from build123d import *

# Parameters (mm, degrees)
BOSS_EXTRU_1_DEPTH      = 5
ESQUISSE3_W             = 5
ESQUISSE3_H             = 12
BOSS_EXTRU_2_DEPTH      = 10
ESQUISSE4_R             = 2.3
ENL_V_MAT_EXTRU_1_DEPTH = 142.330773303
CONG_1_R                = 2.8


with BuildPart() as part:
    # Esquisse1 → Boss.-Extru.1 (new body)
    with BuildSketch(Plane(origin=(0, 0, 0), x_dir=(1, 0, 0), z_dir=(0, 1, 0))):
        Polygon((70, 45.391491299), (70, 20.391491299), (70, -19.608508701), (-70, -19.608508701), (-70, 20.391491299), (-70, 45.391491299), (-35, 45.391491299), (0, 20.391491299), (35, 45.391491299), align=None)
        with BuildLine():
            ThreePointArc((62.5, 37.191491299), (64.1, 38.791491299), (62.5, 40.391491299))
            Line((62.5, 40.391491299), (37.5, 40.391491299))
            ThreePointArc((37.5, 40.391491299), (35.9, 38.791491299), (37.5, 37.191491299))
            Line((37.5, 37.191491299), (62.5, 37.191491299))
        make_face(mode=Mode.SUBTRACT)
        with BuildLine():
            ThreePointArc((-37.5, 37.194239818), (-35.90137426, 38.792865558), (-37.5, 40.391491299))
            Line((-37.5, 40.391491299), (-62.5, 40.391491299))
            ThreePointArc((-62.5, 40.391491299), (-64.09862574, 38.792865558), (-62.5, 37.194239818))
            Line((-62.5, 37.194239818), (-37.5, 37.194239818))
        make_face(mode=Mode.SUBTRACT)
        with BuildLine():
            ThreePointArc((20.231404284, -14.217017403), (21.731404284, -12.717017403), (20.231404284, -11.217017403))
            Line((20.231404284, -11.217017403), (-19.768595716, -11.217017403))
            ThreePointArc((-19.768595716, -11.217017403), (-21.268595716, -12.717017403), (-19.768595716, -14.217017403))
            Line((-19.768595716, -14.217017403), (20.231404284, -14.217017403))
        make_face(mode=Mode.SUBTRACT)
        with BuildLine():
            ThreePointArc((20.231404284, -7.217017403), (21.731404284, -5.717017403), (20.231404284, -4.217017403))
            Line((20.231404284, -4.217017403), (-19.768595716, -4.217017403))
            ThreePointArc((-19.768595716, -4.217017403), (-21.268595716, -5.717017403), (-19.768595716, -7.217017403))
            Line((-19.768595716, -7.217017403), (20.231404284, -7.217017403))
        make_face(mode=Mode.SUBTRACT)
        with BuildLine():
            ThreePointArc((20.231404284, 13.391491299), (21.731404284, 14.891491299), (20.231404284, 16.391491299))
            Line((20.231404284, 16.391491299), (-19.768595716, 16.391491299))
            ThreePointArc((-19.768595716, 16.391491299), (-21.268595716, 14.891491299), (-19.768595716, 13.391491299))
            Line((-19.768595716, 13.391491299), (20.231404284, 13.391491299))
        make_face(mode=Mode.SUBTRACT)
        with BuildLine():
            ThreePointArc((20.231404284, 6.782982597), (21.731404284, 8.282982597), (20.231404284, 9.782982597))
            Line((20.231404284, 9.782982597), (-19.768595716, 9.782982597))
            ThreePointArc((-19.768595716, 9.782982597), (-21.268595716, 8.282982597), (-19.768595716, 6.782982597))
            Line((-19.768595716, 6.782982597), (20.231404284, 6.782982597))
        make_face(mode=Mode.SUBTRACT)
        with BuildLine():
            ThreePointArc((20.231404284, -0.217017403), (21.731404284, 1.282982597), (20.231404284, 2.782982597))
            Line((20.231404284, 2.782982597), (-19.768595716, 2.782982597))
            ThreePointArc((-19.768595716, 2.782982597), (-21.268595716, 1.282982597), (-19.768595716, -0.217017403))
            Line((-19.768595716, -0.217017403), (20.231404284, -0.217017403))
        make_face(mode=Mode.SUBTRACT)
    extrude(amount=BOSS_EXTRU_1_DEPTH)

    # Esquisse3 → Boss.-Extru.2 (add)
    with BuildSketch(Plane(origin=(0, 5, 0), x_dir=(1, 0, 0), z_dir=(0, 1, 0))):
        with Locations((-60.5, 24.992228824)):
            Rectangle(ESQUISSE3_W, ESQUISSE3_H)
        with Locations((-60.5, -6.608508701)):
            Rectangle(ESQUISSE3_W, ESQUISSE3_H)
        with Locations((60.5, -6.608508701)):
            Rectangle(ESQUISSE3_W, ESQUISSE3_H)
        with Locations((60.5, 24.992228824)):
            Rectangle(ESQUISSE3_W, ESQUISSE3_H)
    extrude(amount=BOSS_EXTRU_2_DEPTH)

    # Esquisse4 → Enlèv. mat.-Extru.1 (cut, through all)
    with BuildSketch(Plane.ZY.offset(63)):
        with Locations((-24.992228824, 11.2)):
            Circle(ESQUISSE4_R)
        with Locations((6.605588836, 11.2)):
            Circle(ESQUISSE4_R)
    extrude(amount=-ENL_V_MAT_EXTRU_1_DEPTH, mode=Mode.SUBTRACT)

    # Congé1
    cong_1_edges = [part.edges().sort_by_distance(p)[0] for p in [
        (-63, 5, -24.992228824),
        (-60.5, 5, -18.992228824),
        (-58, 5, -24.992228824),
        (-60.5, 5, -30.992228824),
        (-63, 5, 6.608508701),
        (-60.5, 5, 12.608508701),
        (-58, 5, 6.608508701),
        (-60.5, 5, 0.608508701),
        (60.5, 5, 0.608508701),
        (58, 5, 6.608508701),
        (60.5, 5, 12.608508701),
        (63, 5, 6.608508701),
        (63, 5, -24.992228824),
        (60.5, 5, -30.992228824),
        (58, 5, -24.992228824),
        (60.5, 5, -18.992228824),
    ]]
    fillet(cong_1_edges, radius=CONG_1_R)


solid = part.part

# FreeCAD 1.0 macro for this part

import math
import FreeCAD as App
import Part
import Sketcher


def edges_at(feature, points):
    """Names of the edges that pass closest to the given points."""
    edges = feature.Shape.Edges
    near = lambda p: min(range(len(edges)), key=lambda i: edges[i].distToShape(Part.Vertex(*p))[0])
    return sorted({f"Edge{near(p) + 1}" for p in points})


def add_polygon(sketch, points):
    """Adds a closed chain of lines whose ends are joined by coincident constraints."""
    first, n = sketch.GeometryCount, len(points)
    for a, b in zip(points, points[1:] + points[:1]):
        sketch.addGeometry(Part.LineSegment(App.Vector(*a, 0), App.Vector(*b, 0)), False)
    for i in range(n):
        sketch.addConstraint(Sketcher.Constraint("Coincident", first + i, 2, first + (i + 1) % n, 1))

doc = App.newDocument("Part")
body = doc.addObject("PartDesign::Body", "Body")

# Sketch on XZ plane
sketch1 = body.newObject("Sketcher::SketchObject", "Sketch")
sketch1.AttachmentSupport = (doc.getObject("XZ_Plane"), [""])
sketch1.MapMode = "FlatFace"
add_polygon(sketch1, [(70, 19.608509), (70, -45.391491), (35, -45.391491), (0, -20.391491), (-35, -45.391491), (-70, -45.391491), (-70, 19.608509)])  # lines 0-6
sketch1.addGeometry(Part.LineSegment(App.Vector(20.231404, 14.217017, 0), App.Vector(-19.768596, 14.217017, 0)), False)  # 7
sketch1.addGeometry(Part.ArcOfCircle(Part.Circle(App.Vector(-19.768596, 12.717017, 0), App.Vector(0, 0, 1), 1.5), math.radians(90), math.radians(270)), False)  # 8
sketch1.addGeometry(Part.LineSegment(App.Vector(-19.768596, 11.217017, 0), App.Vector(20.231404, 11.217017, 0)), False)  # 9
sketch1.addGeometry(Part.ArcOfCircle(Part.Circle(App.Vector(20.231404, 12.717017, 0), App.Vector(0, 0, 1), 1.5), math.radians(-90), math.radians(90)), False)  # 10
sketch1.addGeometry(Part.LineSegment(App.Vector(20.231404, 7.217017, 0), App.Vector(-19.768596, 7.217017, 0)), False)  # 11
sketch1.addGeometry(Part.ArcOfCircle(Part.Circle(App.Vector(-19.768596, 5.717017, 0), App.Vector(0, 0, 1), 1.5), math.radians(90), math.radians(270)), False)  # 12
sketch1.addGeometry(Part.LineSegment(App.Vector(-19.768596, 4.217017, 0), App.Vector(20.231404, 4.217017, 0)), False)  # 13
sketch1.addGeometry(Part.ArcOfCircle(Part.Circle(App.Vector(20.231404, 5.717017, 0), App.Vector(0, 0, 1), 1.5), math.radians(-90), math.radians(90)), False)  # 14
sketch1.addGeometry(Part.LineSegment(App.Vector(20.231404, 0.217017, 0), App.Vector(-19.768596, 0.217017, 0)), False)  # 15
sketch1.addGeometry(Part.ArcOfCircle(Part.Circle(App.Vector(-19.768596, -1.282983, 0), App.Vector(0, 0, 1), 1.5), math.radians(90), math.radians(270)), False)  # 16
sketch1.addGeometry(Part.LineSegment(App.Vector(-19.768596, -2.782983, 0), App.Vector(20.231404, -2.782983, 0)), False)  # 17
sketch1.addGeometry(Part.ArcOfCircle(Part.Circle(App.Vector(20.231404, -1.282983, 0), App.Vector(0, 0, 1), 1.5), math.radians(-90), math.radians(90)), False)  # 18
sketch1.addGeometry(Part.LineSegment(App.Vector(20.231404, -6.782983, 0), App.Vector(-19.768596, -6.782983, 0)), False)  # 19
sketch1.addGeometry(Part.ArcOfCircle(Part.Circle(App.Vector(-19.768596, -8.282983, 0), App.Vector(0, 0, 1), 1.5), math.radians(90), math.radians(270)), False)  # 20
sketch1.addGeometry(Part.LineSegment(App.Vector(-19.768596, -9.782983, 0), App.Vector(20.231404, -9.782983, 0)), False)  # 21
sketch1.addGeometry(Part.ArcOfCircle(Part.Circle(App.Vector(20.231404, -8.282983, 0), App.Vector(0, 0, 1), 1.5), math.radians(-90), math.radians(90)), False)  # 22
sketch1.addGeometry(Part.LineSegment(App.Vector(20.231404, -13.391491, 0), App.Vector(-19.768596, -13.391491, 0)), False)  # 23
sketch1.addGeometry(Part.ArcOfCircle(Part.Circle(App.Vector(-19.768596, -14.891491, 0), App.Vector(0, 0, 1), 1.5), math.radians(90), math.radians(270)), False)  # 24
sketch1.addGeometry(Part.LineSegment(App.Vector(-19.768596, -16.391491, 0), App.Vector(20.231404, -16.391491, 0)), False)  # 25
sketch1.addGeometry(Part.ArcOfCircle(Part.Circle(App.Vector(20.231404, -14.891491, 0), App.Vector(0, 0, 1), 1.5), math.radians(-90), math.radians(90)), False)  # 26
sketch1.addGeometry(Part.LineSegment(App.Vector(62.5, -37.191491, 0), App.Vector(37.5, -37.191491, 0)), False)  # 27
sketch1.addGeometry(Part.ArcOfCircle(Part.Circle(App.Vector(37.5, -38.791491, 0), App.Vector(0, 0, 1), 1.6), math.radians(90), math.radians(270)), False)  # 28
sketch1.addGeometry(Part.LineSegment(App.Vector(37.5, -40.391491, 0), App.Vector(62.5, -40.391491, 0)), False)  # 29
sketch1.addGeometry(Part.ArcOfCircle(Part.Circle(App.Vector(62.5, -38.791491, 0), App.Vector(0, 0, 1), 1.6), math.radians(-90), math.radians(90)), False)  # 30
sketch1.addGeometry(Part.LineSegment(App.Vector(-37.5, -37.19424, 0), App.Vector(-62.5, -37.19424, 0)), False)  # 31
sketch1.addGeometry(Part.ArcOfCircle(Part.Circle(App.Vector(-62.5, -38.792866, 0), App.Vector(0, 0, 1), 1.598626), math.radians(90), math.radians(270)), False)  # 32
sketch1.addGeometry(Part.LineSegment(App.Vector(-62.5, -40.391491, 0), App.Vector(-37.5, -40.391491, 0)), False)  # 33
sketch1.addGeometry(Part.ArcOfCircle(Part.Circle(App.Vector(-37.5, -38.792866, 0), App.Vector(0, 0, 1), 1.598626), math.radians(-90), math.radians(90)), False)  # 34
sketch1.addConstraint(Sketcher.Constraint("Tangent", 7, 2, 8, 1))
sketch1.addConstraint(Sketcher.Constraint("Tangent", 8, 2, 9, 1))
sketch1.addConstraint(Sketcher.Constraint("Tangent", 9, 2, 10, 1))
sketch1.addConstraint(Sketcher.Constraint("Tangent", 10, 2, 7, 1))
sketch1.addConstraint(Sketcher.Constraint("Tangent", 11, 2, 12, 1))
sketch1.addConstraint(Sketcher.Constraint("Tangent", 12, 2, 13, 1))
sketch1.addConstraint(Sketcher.Constraint("Tangent", 13, 2, 14, 1))
sketch1.addConstraint(Sketcher.Constraint("Tangent", 14, 2, 11, 1))
sketch1.addConstraint(Sketcher.Constraint("Tangent", 15, 2, 16, 1))
sketch1.addConstraint(Sketcher.Constraint("Tangent", 16, 2, 17, 1))
sketch1.addConstraint(Sketcher.Constraint("Tangent", 17, 2, 18, 1))
sketch1.addConstraint(Sketcher.Constraint("Tangent", 18, 2, 15, 1))
sketch1.addConstraint(Sketcher.Constraint("Tangent", 19, 2, 20, 1))
sketch1.addConstraint(Sketcher.Constraint("Tangent", 20, 2, 21, 1))
sketch1.addConstraint(Sketcher.Constraint("Tangent", 21, 2, 22, 1))
sketch1.addConstraint(Sketcher.Constraint("Tangent", 22, 2, 19, 1))
sketch1.addConstraint(Sketcher.Constraint("Tangent", 23, 2, 24, 1))
sketch1.addConstraint(Sketcher.Constraint("Tangent", 24, 2, 25, 1))
sketch1.addConstraint(Sketcher.Constraint("Tangent", 25, 2, 26, 1))
sketch1.addConstraint(Sketcher.Constraint("Tangent", 26, 2, 23, 1))
sketch1.addConstraint(Sketcher.Constraint("Tangent", 27, 2, 28, 1))
sketch1.addConstraint(Sketcher.Constraint("Tangent", 28, 2, 29, 1))
sketch1.addConstraint(Sketcher.Constraint("Tangent", 29, 2, 30, 1))
sketch1.addConstraint(Sketcher.Constraint("Tangent", 30, 2, 27, 1))
sketch1.addConstraint(Sketcher.Constraint("Tangent", 31, 2, 32, 1))
sketch1.addConstraint(Sketcher.Constraint("Tangent", 32, 2, 33, 1))
sketch1.addConstraint(Sketcher.Constraint("Tangent", 33, 2, 34, 1))
sketch1.addConstraint(Sketcher.Constraint("Tangent", 34, 2, 31, 1))
sketch1.addConstraint(Sketcher.Constraint("Vertical", 0))
sketch1.addConstraint(Sketcher.Constraint("Horizontal", 1))
sketch1.addConstraint(Sketcher.Constraint("Horizontal", 4))
sketch1.addConstraint(Sketcher.Constraint("Vertical", 5))
sketch1.addConstraint(Sketcher.Constraint("Horizontal", 6))
sketch1.addConstraint(Sketcher.Constraint("Horizontal", 7))
sketch1.addConstraint(Sketcher.Constraint("Horizontal", 9))
sketch1.addConstraint(Sketcher.Constraint("Horizontal", 11))
sketch1.addConstraint(Sketcher.Constraint("Horizontal", 13))
sketch1.addConstraint(Sketcher.Constraint("Horizontal", 15))
sketch1.addConstraint(Sketcher.Constraint("Horizontal", 17))
sketch1.addConstraint(Sketcher.Constraint("Horizontal", 19))
sketch1.addConstraint(Sketcher.Constraint("Horizontal", 21))
sketch1.addConstraint(Sketcher.Constraint("Horizontal", 23))
sketch1.addConstraint(Sketcher.Constraint("Horizontal", 25))
sketch1.addConstraint(Sketcher.Constraint("Horizontal", 27))
sketch1.addConstraint(Sketcher.Constraint("Horizontal", 29))
sketch1.addConstraint(Sketcher.Constraint("Horizontal", 31))
sketch1.addConstraint(Sketcher.Constraint("Horizontal", 33))
sketch1.addConstraint(Sketcher.Constraint("Equal", 10, 12))
sketch1.addConstraint(Sketcher.Constraint("Equal", 14, 16))
sketch1.addConstraint(Sketcher.Constraint("Equal", 18, 20))
sketch1.addConstraint(Sketcher.Constraint("Equal", 22, 24))
sketch1.addConstraint(Sketcher.Constraint("Symmetric", 1, 2, 3, 2, -2))
sketch1.addConstraint(Sketcher.Constraint("Symmetric", 29, 2, 32, 2, -2))
sketch1.addConstraint(Sketcher.Constraint("PointOnObject", 2, 2, -2))
sketch1.addConstraint(Sketcher.Constraint("Vertical", 8, 3, 12, 3))
sketch1.addConstraint(Sketcher.Constraint("Vertical", 10, 3, 14, 3))
sketch1.addConstraint(Sketcher.Constraint("Vertical", 12, 3, 16, 3))
sketch1.addConstraint(Sketcher.Constraint("Vertical", 14, 3, 18, 3))
sketch1.addConstraint(Sketcher.Constraint("Vertical", 16, 3, 20, 3))
sketch1.addConstraint(Sketcher.Constraint("Vertical", 18, 3, 22, 3))
sketch1.addConstraint(Sketcher.Constraint("Vertical", 20, 3, 24, 3))
sketch1.addConstraint(Sketcher.Constraint("Vertical", 22, 3, 26, 3))
sketch1.addConstraint(Sketcher.Constraint("Equal", 1, 4))
sketch1.addConstraint(Sketcher.Constraint("Equal", 29, 31))
sketch1.addConstraint(Sketcher.Constraint("Radius", 8, 1.5))
sketch1.addConstraint(Sketcher.Constraint("Radius", 28, 1.6))
sketch1.addConstraint(Sketcher.Constraint("DistanceX", 1, 2, 1, 1, 35.0))
sketch1.addConstraint(Sketcher.Constraint("DistanceX", 6, 1, 6, 2, 140.0))
sketch1.addConstraint(Sketcher.Constraint("DistanceX", 7, 2, 7, 1, 40.0))
sketch1.addConstraint(Sketcher.Constraint("DistanceX", 27, 2, 27, 1, 25.0))
sketch1.addConstraint(Sketcher.Constraint("DistanceY", 0, 2, 0, 1, 65.0))
sketch1.addConstraint(Sketcher.Constraint("DistanceY", 12, 3, 8, 3, 7.0))
sketch1.addConstraint(Sketcher.Constraint("DistanceY", 16, 3, 12, 3, 7.0))
sketch1.addConstraint(Sketcher.Constraint("DistanceY", 20, 3, 16, 3, 7.0))
sketch1.addConstraint(Sketcher.Constraint("DistanceY", 3, 2, 2, 2, 25.0))
sketch1.addConstraint(Sketcher.Constraint("DistanceY", 1, 2, 28, 2, 5.0))
sketch1.addConstraint(Sketcher.Constraint("DistanceY", 28, 2, 25, 2, 24.0))
sketch1.addConstraint(Sketcher.Constraint("DistanceX", -1, 1, 28, 3, 37.5))
sketch1.addConstraint(Sketcher.Constraint("Radius", 32, 1.598626))
sketch1.addConstraint(Sketcher.Constraint("DistanceY", 24, 3, -1, 1, 14.891491))
sketch1.addConstraint(Sketcher.Constraint("DistanceY", 24, 3, 20, 3, 6.608509))
sketch1.addConstraint(Sketcher.Constraint("DistanceX", 8, 3, -1, 1, 19.768596))
pad1 = body.newObject("PartDesign::Pad", "Pad")
pad1.Profile = sketch1
pad1.Length = 5
pad1.Reversed = True

# Sketch on XZ plane
sketch2 = body.newObject("Sketcher::SketchObject", "Sketch001")
sketch2.AttachmentSupport = (doc.getObject("XZ_Plane"), [""])
sketch2.MapMode = "FlatFace"
sketch2.AttachmentOffset = App.Placement(App.Vector(0, 0, -5), App.Rotation())
add_polygon(sketch2, [(-63, -30.992229), (-63, -18.992229), (-58, -18.992229), (-58, -30.992229)])  # lines 0-3
add_polygon(sketch2, [(-63, 0.608509), (-63, 12.608509), (-58, 12.608509), (-58, 0.608509)])  # lines 4-7
add_polygon(sketch2, [(58, 0.608509), (58, 12.608509), (63, 12.608509), (63, 0.608509)])  # lines 8-11
add_polygon(sketch2, [(58, -30.992229), (58, -18.992229), (63, -18.992229), (63, -30.992229)])  # lines 12-15
sketch2.addConstraint(Sketcher.Constraint("Vertical", 0))
sketch2.addConstraint(Sketcher.Constraint("Horizontal", 1))
sketch2.addConstraint(Sketcher.Constraint("Vertical", 2))
sketch2.addConstraint(Sketcher.Constraint("Horizontal", 3))
sketch2.addConstraint(Sketcher.Constraint("Vertical", 4))
sketch2.addConstraint(Sketcher.Constraint("Horizontal", 5))
sketch2.addConstraint(Sketcher.Constraint("Vertical", 6))
sketch2.addConstraint(Sketcher.Constraint("Horizontal", 7))
sketch2.addConstraint(Sketcher.Constraint("Vertical", 8))
sketch2.addConstraint(Sketcher.Constraint("Horizontal", 9))
sketch2.addConstraint(Sketcher.Constraint("Vertical", 10))
sketch2.addConstraint(Sketcher.Constraint("Horizontal", 11))
sketch2.addConstraint(Sketcher.Constraint("Vertical", 12))
sketch2.addConstraint(Sketcher.Constraint("Horizontal", 13))
sketch2.addConstraint(Sketcher.Constraint("Vertical", 14))
sketch2.addConstraint(Sketcher.Constraint("Horizontal", 15))
sketch2.addConstraint(Sketcher.Constraint("Symmetric", 5, 2, 8, 2, -2))
sketch2.addConstraint(Sketcher.Constraint("Symmetric", 7, 2, 10, 2, -2))
sketch2.addConstraint(Sketcher.Constraint("Symmetric", 1, 2, 12, 2, -2))
sketch2.addConstraint(Sketcher.Constraint("Symmetric", 3, 2, 14, 2, -2))
sketch2.addConstraint(Sketcher.Constraint("Vertical", 3, 2, 4, 2))
sketch2.addConstraint(Sketcher.Constraint("Vertical", 2, 2, 5, 2))
sketch2.addConstraint(Sketcher.Constraint("Equal", 2, 4))
sketch2.addConstraint(Sketcher.Constraint("DistanceX", 1, 1, 1, 2, 5.0))
sketch2.addConstraint(Sketcher.Constraint("DistanceY", 0, 1, 0, 2, 12.0))
sketch2.addConstraint(Sketcher.Constraint("DistanceX", 0, 2, -1, 1, 63.0))
sketch2.addConstraint(Sketcher.Constraint("DistanceY", 0, 2, -1, 1, 18.992229))
sketch2.addConstraint(Sketcher.Constraint("DistanceY", -1, 1, 4, 2, 12.608509))
pad2 = body.newObject("PartDesign::Pad", "Pad001")
pad2.Profile = sketch2
pad2.Length = 10
pad2.Reversed = True

# Sketch on YZ plane
sketch3 = body.newObject("Sketcher::SketchObject", "Sketch002")
sketch3.AttachmentSupport = (doc.getObject("YZ_Plane"), [""])
sketch3.MapMode = "FlatFace"
sketch3.AttachmentOffset = App.Placement(App.Vector(0, 0, -63), App.Rotation())
sketch3.addGeometry(Part.Circle(App.Vector(11.2, -24.992229, 0), App.Vector(0, 0, 1), 2.3), False)
sketch3.addGeometry(Part.Circle(App.Vector(11.2, 6.605589, 0), App.Vector(0, 0, 1), 2.3), False)
sketch3.addConstraint(Sketcher.Constraint("Equal", 0, 1))
sketch3.addConstraint(Sketcher.Constraint("Vertical", 0, 3, 1, 3))
sketch3.addConstraint(Sketcher.Constraint("Diameter", 0, 4.6))
sketch3.addConstraint(Sketcher.Constraint("DistanceX", -1, 1, 0, 3, 11.2))
sketch3.addConstraint(Sketcher.Constraint("DistanceY", 0, 3, -1, 1, 24.992229))
sketch3.addConstraint(Sketcher.Constraint("DistanceY", -1, 1, 1, 3, 6.605589))
pocket1 = body.newObject("PartDesign::Pocket", "Pocket")
pocket1.Profile = sketch3
pocket1.Type = "ThroughAll"
pocket1.Reversed = True
doc.recompute()

fillet = body.newObject("PartDesign::Fillet", "Fillet")
fillet.Base = (pocket1, edges_at(pocket1, [
    (-63, 5, -24.992),
    (-60.5, 5, -18.992),
    (-58, 5, -24.992),
    (-60.5, 5, -30.992),
    (-63, 5, 6.609),
    (-60.5, 5, 12.609),
    (-58, 5, 6.609),
    (-60.5, 5, 0.609),
    (60.5, 5, 0.609),
    (58, 5, 6.609),
    (60.5, 5, 12.609),
    (63, 5, 6.609),
    (63, 5, -24.992),
    (60.5, 5, -30.992),
    (58, 5, -24.992),
    (60.5, 5, -18.992),
]))
fillet.Radius = 2.8

doc.recompute()
